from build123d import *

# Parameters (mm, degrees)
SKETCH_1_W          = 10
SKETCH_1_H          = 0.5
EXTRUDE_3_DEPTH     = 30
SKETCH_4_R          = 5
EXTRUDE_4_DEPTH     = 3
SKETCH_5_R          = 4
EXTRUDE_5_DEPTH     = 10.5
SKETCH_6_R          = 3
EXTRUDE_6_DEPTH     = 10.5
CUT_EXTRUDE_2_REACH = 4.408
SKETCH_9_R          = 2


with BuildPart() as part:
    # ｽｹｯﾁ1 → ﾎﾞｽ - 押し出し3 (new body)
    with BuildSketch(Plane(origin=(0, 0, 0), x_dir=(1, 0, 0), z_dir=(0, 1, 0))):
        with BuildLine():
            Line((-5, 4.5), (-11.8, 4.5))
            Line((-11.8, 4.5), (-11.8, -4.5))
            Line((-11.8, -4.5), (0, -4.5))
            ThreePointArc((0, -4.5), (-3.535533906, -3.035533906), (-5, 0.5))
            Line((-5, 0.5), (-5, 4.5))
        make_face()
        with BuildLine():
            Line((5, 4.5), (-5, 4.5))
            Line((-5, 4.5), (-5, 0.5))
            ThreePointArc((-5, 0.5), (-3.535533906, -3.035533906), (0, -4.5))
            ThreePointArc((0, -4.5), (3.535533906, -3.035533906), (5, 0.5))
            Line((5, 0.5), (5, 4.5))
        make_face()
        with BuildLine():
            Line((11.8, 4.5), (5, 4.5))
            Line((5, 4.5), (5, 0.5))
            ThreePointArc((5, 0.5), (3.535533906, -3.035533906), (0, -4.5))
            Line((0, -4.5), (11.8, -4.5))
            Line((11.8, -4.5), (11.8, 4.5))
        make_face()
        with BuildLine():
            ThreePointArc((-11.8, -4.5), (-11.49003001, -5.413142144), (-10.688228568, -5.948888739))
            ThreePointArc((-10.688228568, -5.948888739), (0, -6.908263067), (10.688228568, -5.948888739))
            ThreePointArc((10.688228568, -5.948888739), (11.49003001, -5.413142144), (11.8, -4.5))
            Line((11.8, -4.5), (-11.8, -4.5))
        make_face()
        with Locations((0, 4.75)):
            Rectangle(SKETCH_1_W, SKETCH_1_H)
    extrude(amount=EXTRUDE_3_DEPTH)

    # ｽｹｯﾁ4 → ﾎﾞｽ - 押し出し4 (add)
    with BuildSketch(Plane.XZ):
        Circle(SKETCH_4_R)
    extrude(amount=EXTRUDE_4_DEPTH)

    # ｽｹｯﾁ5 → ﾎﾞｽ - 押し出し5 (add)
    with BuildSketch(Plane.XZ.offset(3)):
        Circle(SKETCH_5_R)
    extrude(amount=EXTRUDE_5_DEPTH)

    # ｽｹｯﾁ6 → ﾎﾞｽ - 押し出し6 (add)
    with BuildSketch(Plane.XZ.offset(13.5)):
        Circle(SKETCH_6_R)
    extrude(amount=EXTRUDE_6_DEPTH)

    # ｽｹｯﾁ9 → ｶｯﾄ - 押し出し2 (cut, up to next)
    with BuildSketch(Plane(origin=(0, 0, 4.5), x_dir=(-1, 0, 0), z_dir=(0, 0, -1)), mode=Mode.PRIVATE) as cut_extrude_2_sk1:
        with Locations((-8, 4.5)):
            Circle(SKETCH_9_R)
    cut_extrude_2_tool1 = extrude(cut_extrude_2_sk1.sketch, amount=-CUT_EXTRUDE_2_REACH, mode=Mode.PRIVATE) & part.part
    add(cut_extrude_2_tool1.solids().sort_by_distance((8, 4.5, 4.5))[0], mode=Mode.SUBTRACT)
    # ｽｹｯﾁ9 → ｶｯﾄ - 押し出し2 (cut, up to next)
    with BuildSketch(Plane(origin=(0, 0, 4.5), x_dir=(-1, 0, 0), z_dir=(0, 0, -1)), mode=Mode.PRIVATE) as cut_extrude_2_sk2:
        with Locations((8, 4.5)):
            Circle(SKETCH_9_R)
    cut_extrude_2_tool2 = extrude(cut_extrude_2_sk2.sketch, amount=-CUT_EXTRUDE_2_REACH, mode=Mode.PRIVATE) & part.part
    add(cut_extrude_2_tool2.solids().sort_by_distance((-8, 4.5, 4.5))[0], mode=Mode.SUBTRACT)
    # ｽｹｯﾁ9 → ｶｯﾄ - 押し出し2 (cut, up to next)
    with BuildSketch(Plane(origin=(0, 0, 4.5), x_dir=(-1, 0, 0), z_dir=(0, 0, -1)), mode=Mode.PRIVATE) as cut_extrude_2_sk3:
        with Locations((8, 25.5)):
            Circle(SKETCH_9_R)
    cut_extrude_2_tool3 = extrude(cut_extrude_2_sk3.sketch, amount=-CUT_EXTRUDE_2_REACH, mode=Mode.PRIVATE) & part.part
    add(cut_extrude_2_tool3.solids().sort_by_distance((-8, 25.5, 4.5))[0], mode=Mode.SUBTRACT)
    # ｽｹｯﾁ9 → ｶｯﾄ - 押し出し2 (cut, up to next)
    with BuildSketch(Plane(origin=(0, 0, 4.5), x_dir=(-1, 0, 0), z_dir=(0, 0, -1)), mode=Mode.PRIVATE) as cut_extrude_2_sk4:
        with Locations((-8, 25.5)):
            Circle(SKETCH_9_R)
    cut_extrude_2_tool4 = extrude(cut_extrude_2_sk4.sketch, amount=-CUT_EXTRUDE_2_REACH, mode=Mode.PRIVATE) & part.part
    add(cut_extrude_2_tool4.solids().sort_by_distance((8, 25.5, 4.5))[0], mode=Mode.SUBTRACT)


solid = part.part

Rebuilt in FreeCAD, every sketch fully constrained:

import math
import FreeCAD as App
import Part
import Sketcher
Q = App.Units.Quantity

doc = App.newDocument("Part")
body = doc.addObject("PartDesign::Body", "Body")

sketch1 = body.newObject("Sketcher::SketchObject", "Sketch")
sketch1.AttachmentSupport = (doc.getObject("XZ_Plane"), [""])
sketch1.MapMode = "FlatFace"
sketch1.addGeometry(Part.LineSegment(App.Vector(-11.8, -4.5, 0), App.Vector(-11.8, 4.5, 0)), False)
sketch1.addGeometry(Part.ArcOfCircle(Part.Circle(App.Vector(-10.3, 4.5, 0), App.Vector(0, 0, 1), 1.5), math.radians(105), math.radians(180)), False)
sketch1.addGeometry(Part.ArcOfCircle(Part.Circle(App.Vector(0, -53.1, 0), App.Vector(0, 0, 1), 60), math.radians(80), math.radians(100)), False)
sketch1.addGeometry(Part.ArcOfCircle(Part.Circle(App.Vector(10.3, 4.5, 0), App.Vector(0, 0, 1), 1.5), math.radians(0), math.radians(75)), False)
sketch1.addGeometry(Part.LineSegment(App.Vector(11.8, 4.5, 0), App.Vector(11.8, -4.5, 0)), False)
sketch1.addGeometry(Part.LineSegment(App.Vector(11.8, -4.5, 0), App.Vector(5, -4.5, 0)), False)
sketch1.addGeometry(Part.LineSegment(App.Vector(5, -4.5, 0), App.Vector(5, -5, 0)), False)
sketch1.addGeometry(Part.LineSegment(App.Vector(5, -5, 0), App.Vector(-5, -5, 0)), False)
sketch1.addGeometry(Part.LineSegment(App.Vector(-5, -5, 0), App.Vector(-5, -4.5, 0)), False)
sketch1.addGeometry(Part.LineSegment(App.Vector(-5, -4.5, 0), App.Vector(-11.8, -4.5, 0)), False)
sketch1.addConstraint(Sketcher.Constraint("Tangent", 0, 2, 1, 2))
sketch1.addConstraint(Sketcher.Constraint("Coincident", 1, 1, 2, 2))
sketch1.addConstraint(Sketcher.Constraint("Coincident", 2, 1, 3, 2))
sketch1.addConstraint(Sketcher.Constraint("Tangent", 3, 1, 4, 1))
sketch1.addConstraint(Sketcher.Constraint("Coincident", 4, 2, 5, 1))
sketch1.addConstraint(Sketcher.Constraint("Coincident", 5, 2, 6, 1))
sketch1.addConstraint(Sketcher.Constraint("Coincident", 6, 2, 7, 1))
sketch1.addConstraint(Sketcher.Constraint("Coincident", 7, 2, 8, 1))
sketch1.addConstraint(Sketcher.Constraint("Coincident", 8, 2, 9, 1))
sketch1.addConstraint(Sketcher.Constraint("Coincident", 9, 2, 0, 1))
sketch1.addConstraint(Sketcher.Constraint("Vertical", 0))
sketch1.addConstraint(Sketcher.Constraint("Vertical", 4))
sketch1.addConstraint(Sketcher.Constraint("Horizontal", 5))
sketch1.addConstraint(Sketcher.Constraint("Vertical", 6))
sketch1.addConstraint(Sketcher.Constraint("Horizontal", 7))
sketch1.addConstraint(Sketcher.Constraint("Vertical", 8))
sketch1.addConstraint(Sketcher.Constraint("Horizontal", 9))
sketch1.addConstraint(Sketcher.Constraint("Equal", 1, 3))
sketch1.addConstraint(Sketcher.Constraint("Symmetric", 0, 2, 4, 2, -1, 1))
sketch1.addConstraint(Sketcher.Constraint("Symmetric", 1, 1, 2, 1, -2))
sketch1.addConstraint(Sketcher.Constraint("Symmetric", 5, 2, 8, 2, -2))
sketch1.addConstraint(Sketcher.Constraint("Radius", 1, Q("1.5 mm")))
sketch1.addConstraint(Sketcher.Constraint("DistanceX", 7, 2, 7, 1, Q("10 mm")))
sketch1.addConstraint(Sketcher.Constraint("DistanceY", 0, 1, 0, 2, Q("9 mm")))
sketch1.addConstraint(Sketcher.Constraint("DistanceX", 5, 2, 5, 1, Q("6.8 mm")))
sketch1.addConstraint(Sketcher.Constraint("DistanceY", 6, 2, 6, 1, Q("0.5 mm")))
sketch1.addConstraint(Sketcher.Constraint("Radius", 2, Q("60.017569 mm")))
sketch1.addConstraint(Sketcher.Constraint("DistanceX", 1, 1, -1, 1, Q("10.688229 mm")))
pad1 = body.newObject("PartDesign::Pad", "Pad")
pad1.Profile = sketch1
pad1.Length = 30
pad1.Reversed = True

sketch2 = body.newObject("Sketcher::SketchObject", "Sketch001")
sketch2.AttachmentSupport = (doc.getObject("XZ_Plane"), [""])
sketch2.MapMode = "FlatFace"
sketch2.addGeometry(Part.Circle(App.Vector(0, 0, 0), App.Vector(0, 0, 1), 5), False)
sketch2.addConstraint(Sketcher.Constraint("Coincident", 0, 3, -1, 1))
sketch2.addConstraint(Sketcher.Constraint("Diameter", 0, Q("10 mm")))
pad2 = body.newObject("PartDesign::Pad", "Pad001")
pad2.Profile = sketch2
pad2.Length = 3

sketch3 = body.newObject("Sketcher::SketchObject", "Sketch002")
sketch3.AttachmentSupport = (doc.getObject("XZ_Plane"), [""])
sketch3.MapMode = "FlatFace"
sketch3.AttachmentOffset = App.Placement(App.Vector(0, 0, 3), App.Rotation())
sketch3.addGeometry(Part.Circle(App.Vector(0, 0, 0), App.Vector(0, 0, 1), 4), False)
sketch3.addConstraint(Sketcher.Constraint("Coincident", 0, 3, -1, 1))
sketch3.addConstraint(Sketcher.Constraint("Diameter", 0, Q("8 mm")))
pad3 = body.newObject("PartDesign::Pad", "Pad002")
pad3.Profile = sketch3
pad3.Length = 10.5

sketch4 = body.newObject("Sketcher::SketchObject", "Sketch003")
sketch4.AttachmentSupport = (doc.getObject("XZ_Plane"), [""])
sketch4.MapMode = "FlatFace"
sketch4.AttachmentOffset = App.Placement(App.Vector(0, 0, 13.5), App.Rotation())
sketch4.addGeometry(Part.Circle(App.Vector(0, 0, 0), App.Vector(0, 0, 1), 3), False)
sketch4.addConstraint(Sketcher.Constraint("Coincident", 0, 3, -1, 1))
sketch4.addConstraint(Sketcher.Constraint("Diameter", 0, Q("6 mm")))
pad4 = body.newObject("PartDesign::Pad", "Pad003")
pad4.Profile = sketch4
pad4.Length = 10.5

sketch5 = body.newObject("Sketcher::SketchObject", "Sketch004")
sketch5.AttachmentSupport = (doc.getObject("XY_Plane"), [""])
sketch5.MapMode = "FlatFace"
sketch5.AttachmentOffset = App.Placement(App.Vector(0, 0, 4.5), App.Rotation())
sketch5.addGeometry(Part.Circle(App.Vector(8, 4.5, 0), App.Vector(0, 0, 1), 2), False)
sketch5.addConstraint(Sketcher.Constraint("Diameter", 0, Q("4 mm")))
sketch5.addConstraint(Sketcher.Constraint("DistanceX", -1, 1, 0, 3, Q("8 mm")))
sketch5.addConstraint(Sketcher.Constraint("DistanceY", -1, 1, 0, 3, Q("4.5 mm")))
pocket1 = body.newObject("PartDesign::Pocket", "Pocket")
pocket1.Profile = sketch5
pocket1.Type = "UpToFirst"
pocket1.Reversed = True

sketch6 = body.newObject("Sketcher::SketchObject", "Sketch005")
sketch6.AttachmentSupport = (doc.getObject("XY_Plane"), [""])
sketch6.MapMode = "FlatFace"
sketch6.AttachmentOffset = App.Placement(App.Vector(0, 0, 4.5), App.Rotation())
sketch6.addGeometry(Part.Circle(App.Vector(-8, 4.5, 0), App.Vector(0, 0, 1), 2), False)
sketch6.addConstraint(Sketcher.Constraint("Diameter", 0, Q("4 mm")))
sketch6.addConstraint(Sketcher.Constraint("DistanceX", 0, 3, -1, 1, Q("8 mm")))
sketch6.addConstraint(Sketcher.Constraint("DistanceY", -1, 1, 0, 3, Q("4.5 mm")))
pocket2 = body.newObject("PartDesign::Pocket", "Pocket001")
pocket2.Profile = sketch6
pocket2.Type = "UpToFirst"
pocket2.Reversed = True

sketch7 = body.newObject("Sketcher::SketchObject", "Sketch006")
sketch7.AttachmentSupport = (doc.getObject("XY_Plane"), [""])
sketch7.MapMode = "FlatFace"
sketch7.AttachmentOffset = App.Placement(App.Vector(0, 0, 4.5), App.Rotation())
sketch7.addGeometry(Part.Circle(App.Vector(-8, 25.5, 0), App.Vector(0, 0, 1), 2), False)
sketch7.addConstraint(Sketcher.Constraint("Diameter", 0, Q("4 mm")))
sketch7.addConstraint(Sketcher.Constraint("DistanceX", 0, 3, -1, 1, Q("8 mm")))
sketch7.addConstraint(Sketcher.Constraint("DistanceY", -1, 1, 0, 3, Q("25.5 mm")))
pocket3 = body.newObject("PartDesign::Pocket", "Pocket002")
pocket3.Profile = sketch7
pocket3.Type = "UpToFirst"
pocket3.Reversed = True

sketch8 = body.newObject("Sketcher::SketchObject", "Sketch007")
sketch8.AttachmentSupport = (doc.getObject("XY_Plane"), [""])
sketch8.MapMode = "FlatFace"
sketch8.AttachmentOffset = App.Placement(App.Vector(0, 0, 4.5), App.Rotation())
sketch8.addGeometry(Part.Circle(App.Vector(8, 25.5, 0), App.Vector(0, 0, 1), 2), False)
sketch8.addConstraint(Sketcher.Constraint("Diameter", 0, Q("4 mm")))
sketch8.addConstraint(Sketcher.Constraint("DistanceX", -1, 1, 0, 3, Q("8 mm")))
sketch8.addConstraint(Sketcher.Constraint("DistanceY", -1, 1, 0, 3, Q("25.5 mm")))
pocket4 = body.newObject("PartDesign::Pocket", "Pocket003")
pocket4.Profile = sketch8
pocket4.Type = "UpToFirst"
pocket4.Reversed = True

doc.recompute()
